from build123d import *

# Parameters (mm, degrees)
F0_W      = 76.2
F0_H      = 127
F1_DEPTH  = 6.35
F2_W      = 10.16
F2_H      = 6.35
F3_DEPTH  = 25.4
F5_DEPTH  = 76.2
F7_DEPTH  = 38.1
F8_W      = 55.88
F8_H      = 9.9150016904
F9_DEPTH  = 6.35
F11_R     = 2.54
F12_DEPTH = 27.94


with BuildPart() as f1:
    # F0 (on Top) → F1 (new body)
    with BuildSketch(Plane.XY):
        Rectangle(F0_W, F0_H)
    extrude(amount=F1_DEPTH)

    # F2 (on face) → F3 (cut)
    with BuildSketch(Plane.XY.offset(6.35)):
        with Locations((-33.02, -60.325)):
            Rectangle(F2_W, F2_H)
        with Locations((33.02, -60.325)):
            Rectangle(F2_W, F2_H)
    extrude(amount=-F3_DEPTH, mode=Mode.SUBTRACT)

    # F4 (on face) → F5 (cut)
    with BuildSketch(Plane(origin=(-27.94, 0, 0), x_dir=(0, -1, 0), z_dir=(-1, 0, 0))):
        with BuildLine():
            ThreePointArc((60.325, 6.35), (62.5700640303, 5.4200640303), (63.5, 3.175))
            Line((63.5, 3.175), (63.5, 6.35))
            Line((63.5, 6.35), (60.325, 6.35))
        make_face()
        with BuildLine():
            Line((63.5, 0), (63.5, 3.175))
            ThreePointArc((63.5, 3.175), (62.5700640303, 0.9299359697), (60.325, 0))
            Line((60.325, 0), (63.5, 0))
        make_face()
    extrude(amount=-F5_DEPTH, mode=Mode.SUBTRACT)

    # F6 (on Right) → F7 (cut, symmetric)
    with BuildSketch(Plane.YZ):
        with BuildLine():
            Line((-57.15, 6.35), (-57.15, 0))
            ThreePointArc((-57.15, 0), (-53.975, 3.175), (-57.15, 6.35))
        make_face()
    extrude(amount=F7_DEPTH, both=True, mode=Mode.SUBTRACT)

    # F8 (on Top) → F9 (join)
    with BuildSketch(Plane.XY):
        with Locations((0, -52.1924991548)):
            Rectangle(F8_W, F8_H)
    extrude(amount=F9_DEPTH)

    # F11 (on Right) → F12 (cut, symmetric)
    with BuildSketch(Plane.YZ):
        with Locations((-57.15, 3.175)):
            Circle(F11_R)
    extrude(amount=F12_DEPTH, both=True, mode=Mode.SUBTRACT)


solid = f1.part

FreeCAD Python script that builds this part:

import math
import FreeCAD as App
import Part
import Sketcher
from FreeCAD import Vector
Q = App.Units.Quantity


def add_polygon(sketch, points):
    """Adds a closed chain of lines whose ends are joined by coincident constraints."""
    first, n = sketch.GeometryCount, len(points)
    for a, b in zip(points, points[1:] + points[:1]):
        sketch.addGeometry(Part.LineSegment(App.Vector(*a, 0), App.Vector(*b, 0)), False)
    for i in range(n):
        sketch.addConstraint(Sketcher.Constraint("Coincident", first + i, 2, first + (i + 1) % n, 1))

doc = App.newDocument("Part")
body = doc.addObject("PartDesign::Body", "Body")
body.AllowCompound = True

sketch1 = doc.addObject("Sketcher::SketchObject", "Sketch")
body.addObject(sketch1)
sketch1.AttachmentSupport = (doc.XY_Plane, [""])
sketch1.MapMode = "FlatFace"
add_polygon(sketch1, [(-38, 64), (-38, -64), (38, -64), (38, 64)])
sketch1.addConstraint(Sketcher.Constraint("Vertical", 0))
sketch1.addConstraint(Sketcher.Constraint("Horizontal", 1))
sketch1.addConstraint(Sketcher.Constraint("Vertical", 2))
sketch1.addConstraint(Sketcher.Constraint("Horizontal", 3))
sketch1.addConstraint(Sketcher.Constraint("Symmetric", 0, 2, 2, 2, -1, 1))
sketch1.addConstraint(Sketcher.Constraint("DistanceX", 1, 1, 1, 2, Q("3 in")))
sketch1.addConstraint(Sketcher.Constraint("DistanceY", 0, 2, 0, 1, Q("5 in")))
pad1 = doc.addObject("PartDesign::Pad", "Pad")
body.addObject(pad1)
pad1.Profile = sketch1
pad1.Length = Q("0.25 in")

sketch2 = doc.addObject("Sketcher::SketchObject", "Sketch001")
body.addObject(sketch2)
sketch2.AttachmentSupport = (doc.XY_Plane, [""])
sketch2.MapMode = "FlatFace"
sketch2.AttachmentOffset = App.Placement(Vector(0, 0, 0.25 * 25.4), App.Rotation())
add_polygon(sketch2, [(-38, -57), (-38, -64), (-28, -64), (-28, -57)])
add_polygon(sketch2, [(28, -57), (28, -64), (38, -64), (38, -57)])
sketch2.addConstraint(Sketcher.Constraint("Vertical", 0))
sketch2.addConstraint(Sketcher.Constraint("Horizontal", 1))
sketch2.addConstraint(Sketcher.Constraint("Vertical", 2))
sketch2.addConstraint(Sketcher.Constraint("Horizontal", 3))
sketch2.addConstraint(Sketcher.Constraint("Vertical", 4))
sketch2.addConstraint(Sketcher.Constraint("Horizontal", 5))
sketch2.addConstraint(Sketcher.Constraint("Vertical", 6))
sketch2.addConstraint(Sketcher.Constraint("Horizontal", 7))
sketch2.addConstraint(Sketcher.Constraint("Symmetric", 1, 2, 4, 2, -2))
sketch2.addConstraint(Sketcher.Constraint("Symmetric", 3, 2, 6, 2, -2))
sketch2.addConstraint(Sketcher.Constraint("DistanceX", 1, 1, 1, 2, Q("0.4 in")))
sketch2.addConstraint(Sketcher.Constraint("DistanceX", 0, 2, 5, 2, Q("3 in")))
sketch2.addConstraint(Sketcher.Constraint("DistanceY", 0, 2, 0, 1, Q("0.25 in")))
sketch2.addConstraint(Sketcher.Constraint("DistanceY", 0, 2, -1, 1, Q("2.5 in")))
pocket1 = doc.addObject("PartDesign::Pocket", "Pocket")
body.addObject(pocket1)
pocket1.Profile = sketch2
pocket1.Length = Q("1 in")

sketch3 = doc.addObject("Sketcher::SketchObject", "Sketch002")
body.addObject(sketch3)
sketch3.AttachmentSupport = (doc.YZ_Plane, [""])
sketch3.MapMode = "FlatFace"
sketch3.AttachmentOffset = App.Placement(Vector(0, 0, -1.1 * 25.4), App.Rotation())
sketch3.addGeometry(Part.ArcOfCircle(Part.Circle(Vector(-60.3, 3.2, 0), Vector(0, 0, 1), 3.2), math.radians(90), math.radians(180)), False)
sketch3.addGeometry(Part.LineSegment(Vector(-63.5, 3.2, 0), Vector(-63.5, 6.3, 0)), False)
sketch3.addGeometry(Part.LineSegment(Vector(-63.5, 6.3, 0), Vector(-60.3, 6.3, 0)), False)
sketch3.addGeometry(Part.LineSegment(Vector(-63.5, 0, 0), Vector(-63.5, 3.2, 0)), False)
sketch3.addGeometry(Part.ArcOfCircle(Part.Circle(Vector(-60.3, 3.2, 0), Vector(0, 0, 1), 3.2), math.radians(180), math.radians(270)), False)
sketch3.addGeometry(Part.LineSegment(Vector(-60.3, 0, 0), Vector(-63.5, 0, 0)), False)
sketch3.addConstraint(Sketcher.Constraint("Tangent", 0, 2, 1, 1))
sketch3.addConstraint(Sketcher.Constraint("Coincident", 1, 2, 2, 1))
sketch3.addConstraint(Sketcher.Constraint("Tangent", 2, 2, 0, 1))
sketch3.addConstraint(Sketcher.Constraint("Tangent", 3, 2, 4, 1))
sketch3.addConstraint(Sketcher.Constraint("Tangent", 4, 2, 5, 1))
sketch3.addConstraint(Sketcher.Constraint("Coincident", 5, 2, 3, 1))
sketch3.addConstraint(Sketcher.Constraint("Vertical", 1))
sketch3.addConstraint(Sketcher.Constraint("Horizontal", 2))
sketch3.addConstraint(Sketcher.Constraint("Vertical", 3))
sketch3.addConstraint(Sketcher.Constraint("Horizontal", 5))
sketch3.addConstraint(Sketcher.Constraint("Coincident", 4, 3, 0, 3))
sketch3.addConstraint(Sketcher.Constraint("Equal", 0, 4))
sketch3.addConstraint(Sketcher.Constraint("PointOnObject", 4, 2, -1))
sketch3.addConstraint(Sketcher.Constraint("Radius", 0, Q("0.125 in")))
sketch3.addConstraint(Sketcher.Constraint("DistanceX", 0, 2, -1, 1, Q("2.5 in")))
pocket2 = doc.addObject("PartDesign::Pocket", "Pocket001")
body.addObject(pocket2)
pocket2.Profile = sketch3
pocket2.Length = Q("3 in")
pocket2.Reversed = True

sketch4 = doc.addObject("Sketcher::SketchObject", "Sketch003")
body.addObject(sketch4)
sketch4.AttachmentSupport = (doc.YZ_Plane, [""])
sketch4.MapMode = "FlatFace"
sketch4.addGeometry(Part.LineSegment(Vector(-57.1, 6.3, 0), Vector(-57.1, 0, 0)), False)
sketch4.addGeometry(Part.ArcOfCircle(Part.Circle(Vector(-57.1, 3.2, 0), Vector(0, 0, 1), 3.2), math.radians(-90), math.radians(90)), False)
sketch4.addConstraint(Sketcher.Constraint("Coincident", 0, 1, 1, 2))
sketch4.addConstraint(Sketcher.Constraint("Coincident", 1, 1, 0, 2))
sketch4.addConstraint(Sketcher.Constraint("Vertical", 0))
sketch4.addConstraint(Sketcher.Constraint("PointOnObject", 1, 1, -1))
sketch4.addConstraint(Sketcher.Constraint("Vertical", 1, 3, 0, 1))
sketch4.addConstraint(Sketcher.Constraint("Radius", 1, Q("0.125 in")))
sketch4.addConstraint(Sketcher.Constraint("DistanceX", 1, 3, -1, 1, Q("2.25 in")))
pocket3 = doc.addObject("PartDesign::Pocket", "Pocket002")
body.addObject(pocket3)
pocket3.Profile = sketch4
pocket3.Length = Q("3 in")
pocket3.Midplane = True

sketch5 = doc.addObject("Sketcher::SketchObject", "Sketch004")
body.addObject(sketch5)
sketch5.AttachmentSupport = (doc.XY_Plane, [""])
sketch5.MapMode = "FlatFace"
add_polygon(sketch5, [(-28, -47), (-28, -57), (28, -57), (28, -47)])
sketch5.addConstraint(Sketcher.Constraint("Vertical", 0))
sketch5.addConstraint(Sketcher.Constraint("Horizontal", 1))
sketch5.addConstraint(Sketcher.Constraint("Vertical", 2))
sketch5.addConstraint(Sketcher.Constraint("Horizontal", 3))
sketch5.addConstraint(Sketcher.Constraint("DistanceX", 1, 1, 1, 2, Q("2.2 in")))
sketch5.addConstraint(Sketcher.Constraint("DistanceX", 0, 2, -1, 1, Q("1.1 in")))
sketch5.addConstraint(Sketcher.Constraint("DistanceY", 0, 2, -1, 1, Q("2.25 in")))
sketch5.addConstraint(Sketcher.Constraint("DistanceY", 0, 2, 0, 1, 9.915002))
pad2 = doc.addObject("PartDesign::Pad", "Pad001")
body.addObject(pad2)
pad2.Profile = sketch5
pad2.Length = Q("0.25 in")

sketch6 = doc.addObject("Sketcher::SketchObject", "Sketch005")
body.addObject(sketch6)
sketch6.AttachmentSupport = (doc.YZ_Plane, [""])
sketch6.MapMode = "FlatFace"
sketch6.addGeometry(Part.Circle(Vector(-57.1, 3.2, 0), Vector(0, 0, 1), 2.5), False)
sketch6.addConstraint(Sketcher.Constraint("Diameter", 0, Q("0.2 in")))
sketch6.addConstraint(Sketcher.Constraint("DistanceX", 0, 3, -1, 1, Q("2.25 in")))
sketch6.addConstraint(Sketcher.Constraint("DistanceY", -1, 1, 0, 3, Q("0.125 in")))
pocket4 = doc.addObject("PartDesign::Pocket", "Pocket003")
body.addObject(pocket4)
pocket4.Profile = sketch6
pocket4.Length = Q("2.2 in")
pocket4.Midplane = True

doc.recompute()
